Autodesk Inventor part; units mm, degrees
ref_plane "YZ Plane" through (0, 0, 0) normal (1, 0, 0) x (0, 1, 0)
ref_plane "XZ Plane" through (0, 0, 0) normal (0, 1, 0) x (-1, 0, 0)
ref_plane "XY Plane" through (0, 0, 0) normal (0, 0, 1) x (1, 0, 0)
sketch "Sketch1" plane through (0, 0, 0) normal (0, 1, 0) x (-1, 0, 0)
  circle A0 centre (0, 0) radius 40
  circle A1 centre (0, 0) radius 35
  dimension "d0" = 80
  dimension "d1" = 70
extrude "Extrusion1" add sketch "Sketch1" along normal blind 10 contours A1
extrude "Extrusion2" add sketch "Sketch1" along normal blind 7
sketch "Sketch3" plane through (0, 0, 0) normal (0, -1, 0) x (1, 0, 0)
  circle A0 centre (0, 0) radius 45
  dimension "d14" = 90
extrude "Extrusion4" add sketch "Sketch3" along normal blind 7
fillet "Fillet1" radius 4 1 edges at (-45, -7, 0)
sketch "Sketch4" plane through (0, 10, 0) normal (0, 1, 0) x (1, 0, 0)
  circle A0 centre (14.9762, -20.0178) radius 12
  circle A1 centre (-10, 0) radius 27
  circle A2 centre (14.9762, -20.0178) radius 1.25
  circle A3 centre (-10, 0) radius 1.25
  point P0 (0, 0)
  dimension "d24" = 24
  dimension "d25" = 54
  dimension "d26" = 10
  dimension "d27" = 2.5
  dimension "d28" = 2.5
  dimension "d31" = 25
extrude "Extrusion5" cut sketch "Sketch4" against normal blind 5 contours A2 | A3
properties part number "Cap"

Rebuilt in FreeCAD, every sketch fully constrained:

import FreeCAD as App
import Part
import Sketcher
from FreeCAD import Vector


def edges_at(feature, points):
    """Names of the edges that pass closest to the given points."""
    edges = feature.Shape.Edges
    near = lambda p: min(range(len(edges)), key=lambda i: edges[i].distToShape(Part.Vertex(*p))[0])
    return sorted({f"Edge{near(p) + 1}" for p in points})

doc = App.newDocument("Part")
body = doc.addObject("PartDesign::Body", "Body")

sketch1 = doc.addObject("Sketcher::SketchObject", "Sketch")
body.addObject(sketch1)
sketch1.AttachmentSupport = (doc.XZ_Plane, [""])
sketch1.MapMode = "FlatFace"
sketch1.addGeometry(Part.Circle(Vector(0, 0, 0), Vector(0, 0, 1), 35), False)
sketch1.addConstraint(Sketcher.Constraint("Coincident", 0, 3, -1, 1))
sketch1.addConstraint(Sketcher.Constraint("Diameter", 0, 70.0))
pad1 = doc.addObject("PartDesign::Pad", "Pad")
body.addObject(pad1)
pad1.Profile = sketch1
pad1.Length = 10
pad1.Reversed = True

sketch2 = doc.addObject("Sketcher::SketchObject", "Sketch001")
body.addObject(sketch2)
sketch2.AttachmentSupport = (doc.XZ_Plane, [""])
sketch2.MapMode = "FlatFace"
sketch2.addGeometry(Part.Circle(Vector(0, 0, 0), Vector(0, 0, 1), 40), False)
sketch2.addGeometry(Part.Circle(Vector(0, 0, 0), Vector(0, 0, 1), 35), False)
sketch2.addConstraint(Sketcher.Constraint("Coincident", 0, 3, -1, 1))
sketch2.addConstraint(Sketcher.Constraint("Coincident", 1, 3, -1, 1))
sketch2.addConstraint(Sketcher.Constraint("Diameter", 0, 80.0))
sketch2.addConstraint(Sketcher.Constraint("Diameter", 1, 70.0))
pad2 = doc.addObject("PartDesign::Pad", "Pad001")
body.addObject(pad2)
pad2.Profile = sketch2
pad2.Length = 7
pad2.Reversed = True

sketch3 = doc.addObject("Sketcher::SketchObject", "Sketch002")
body.addObject(sketch3)
sketch3.AttachmentSupport = (doc.XZ_Plane, [""])
sketch3.MapMode = "FlatFace"
sketch3.addGeometry(Part.Circle(Vector(0, 0, 0), Vector(0, 0, 1), 45), False)
sketch3.addConstraint(Sketcher.Constraint("Coincident", 0, 3, -1, 1))
sketch3.addConstraint(Sketcher.Constraint("Diameter", 0, 90.0))
pad3 = doc.addObject("PartDesign::Pad", "Pad002")
body.addObject(pad3)
pad3.Profile = sketch3
pad3.Length = 7
doc.recompute()

fillet = doc.addObject("PartDesign::Fillet", "Fillet")
body.addObject(fillet)
fillet.Base = (pad3, edges_at(pad3, [(-45, -7, 0)]))
fillet.Radius = 4

sketch4 = doc.addObject("Sketcher::SketchObject", "Sketch003")
body.addObject(sketch4)
sketch4.AttachmentSupport = (doc.XZ_Plane, [""])
sketch4.MapMode = "FlatFace"
sketch4.AttachmentOffset = App.Placement(Vector(0, 0, -10), App.Rotation())
sketch4.addGeometry(Part.Circle(Vector(15, 20, 0), Vector(0, 0, 1), 1.2), False)
sketch4.addGeometry(Part.Circle(Vector(-10, 0, 0), Vector(0, 0, 1), 1.2), False)
sketch4.addConstraint(Sketcher.Constraint("Equal", 0, 1))
sketch4.addConstraint(Sketcher.Constraint("PointOnObject", 1, 3, -1))
sketch4.addConstraint(Sketcher.Constraint("Diameter", 0, 2.5))
sketch4.addConstraint(Sketcher.Constraint("DistanceX", 1, 3, -1, 1, 10.0))
sketch4.addConstraint(Sketcher.Constraint("DistanceX", -1, 1, 0, 3, 14.9762))
sketch4.addConstraint(Sketcher.Constraint("DistanceY", -1, 1, 0, 3, 20.0178))
pocket1 = doc.addObject("PartDesign::Pocket", "Pocket")
body.addObject(pocket1)
pocket1.Profile = sketch4
pocket1.Length = 5
pocket1.Reversed = True

doc.recompute()
